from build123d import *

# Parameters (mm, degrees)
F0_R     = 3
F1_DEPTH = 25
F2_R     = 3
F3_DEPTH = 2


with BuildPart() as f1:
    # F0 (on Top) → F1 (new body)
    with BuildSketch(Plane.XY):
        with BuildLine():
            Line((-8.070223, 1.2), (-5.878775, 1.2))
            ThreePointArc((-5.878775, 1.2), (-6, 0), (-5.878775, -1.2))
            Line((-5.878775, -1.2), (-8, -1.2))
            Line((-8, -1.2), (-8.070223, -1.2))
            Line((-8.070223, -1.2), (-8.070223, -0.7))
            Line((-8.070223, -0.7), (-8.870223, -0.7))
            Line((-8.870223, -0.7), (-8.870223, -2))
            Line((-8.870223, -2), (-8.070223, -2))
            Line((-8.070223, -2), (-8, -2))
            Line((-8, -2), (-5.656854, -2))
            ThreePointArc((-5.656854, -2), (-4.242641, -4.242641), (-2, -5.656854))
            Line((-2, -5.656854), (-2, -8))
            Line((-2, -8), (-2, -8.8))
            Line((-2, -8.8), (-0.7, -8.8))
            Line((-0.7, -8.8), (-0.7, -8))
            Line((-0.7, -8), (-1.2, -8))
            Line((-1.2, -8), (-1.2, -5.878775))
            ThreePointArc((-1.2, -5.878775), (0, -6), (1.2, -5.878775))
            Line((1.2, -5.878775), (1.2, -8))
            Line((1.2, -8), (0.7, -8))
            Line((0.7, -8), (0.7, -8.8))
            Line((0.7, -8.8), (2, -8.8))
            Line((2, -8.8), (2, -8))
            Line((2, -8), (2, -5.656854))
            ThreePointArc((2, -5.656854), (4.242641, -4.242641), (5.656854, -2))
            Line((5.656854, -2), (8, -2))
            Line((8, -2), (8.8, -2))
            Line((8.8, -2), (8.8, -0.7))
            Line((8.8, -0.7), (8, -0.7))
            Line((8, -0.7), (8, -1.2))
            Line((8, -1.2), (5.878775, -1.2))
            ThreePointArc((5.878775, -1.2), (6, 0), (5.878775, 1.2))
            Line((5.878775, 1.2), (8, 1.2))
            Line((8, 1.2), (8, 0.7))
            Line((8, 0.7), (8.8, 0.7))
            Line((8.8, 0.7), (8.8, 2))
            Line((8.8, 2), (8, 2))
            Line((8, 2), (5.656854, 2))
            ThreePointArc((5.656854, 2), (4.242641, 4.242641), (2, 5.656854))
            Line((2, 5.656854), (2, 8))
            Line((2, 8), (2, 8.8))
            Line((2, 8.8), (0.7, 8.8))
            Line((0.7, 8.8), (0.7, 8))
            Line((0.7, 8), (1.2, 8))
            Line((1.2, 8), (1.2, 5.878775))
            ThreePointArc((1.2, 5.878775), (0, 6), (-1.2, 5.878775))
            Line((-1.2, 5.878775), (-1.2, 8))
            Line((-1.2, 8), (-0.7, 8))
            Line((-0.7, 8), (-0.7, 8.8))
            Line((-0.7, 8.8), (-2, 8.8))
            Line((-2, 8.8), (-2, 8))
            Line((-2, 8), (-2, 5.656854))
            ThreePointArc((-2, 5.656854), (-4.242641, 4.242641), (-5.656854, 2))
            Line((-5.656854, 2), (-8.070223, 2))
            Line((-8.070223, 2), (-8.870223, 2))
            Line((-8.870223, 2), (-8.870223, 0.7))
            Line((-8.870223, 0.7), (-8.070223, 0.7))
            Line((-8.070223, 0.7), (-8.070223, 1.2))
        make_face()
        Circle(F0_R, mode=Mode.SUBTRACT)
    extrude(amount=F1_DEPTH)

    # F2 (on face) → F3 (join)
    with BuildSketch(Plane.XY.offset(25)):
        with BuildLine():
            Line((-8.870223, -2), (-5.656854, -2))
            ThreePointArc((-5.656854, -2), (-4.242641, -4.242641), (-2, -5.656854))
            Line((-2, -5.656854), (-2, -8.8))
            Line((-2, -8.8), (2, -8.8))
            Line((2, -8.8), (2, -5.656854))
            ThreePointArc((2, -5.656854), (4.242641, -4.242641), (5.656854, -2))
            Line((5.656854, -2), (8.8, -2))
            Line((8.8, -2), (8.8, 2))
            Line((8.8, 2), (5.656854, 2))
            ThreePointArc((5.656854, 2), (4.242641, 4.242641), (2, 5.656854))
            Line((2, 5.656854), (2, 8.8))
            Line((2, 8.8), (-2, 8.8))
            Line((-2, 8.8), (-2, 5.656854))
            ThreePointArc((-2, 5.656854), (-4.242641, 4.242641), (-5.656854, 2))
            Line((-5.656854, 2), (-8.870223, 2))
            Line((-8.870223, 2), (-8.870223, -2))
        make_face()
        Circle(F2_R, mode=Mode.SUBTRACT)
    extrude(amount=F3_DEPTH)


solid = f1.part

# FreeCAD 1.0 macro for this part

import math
import FreeCAD as App
import Part
import Sketcher
from FreeCAD import Vector

doc = App.newDocument("Part")
body = doc.addObject("PartDesign::Body", "Body")

# Sketch on XY plane
sketch1 = doc.addObject("Sketcher::SketchObject", "Sketch")
body.addObject(sketch1)
sketch1.AttachmentSupport = (doc.XY_Plane, [""])
sketch1.MapMode = "FlatFace"
sketch1.addGeometry([
    Part.LineSegment(Vector(-8.070223, 1.2, 0), Vector(-5.878775, 1.2, 0)),  # 0
    Part.ArcOfCircle(Part.Circle(Vector(-0.000019, 0, 0), Vector(0, 0, 1), 5.999981), math.radians(168.463005), math.radians(191.536995)),  # 1
    Part.LineSegment(Vector(-5.878775, -1.2, 0), Vector(-8.070223, -1.2, 0)),  # 2
    Part.LineSegment(Vector(-8.070223, -1.2, 0), Vector(-8.070223, -0.7, 0)),  # 3
    Part.LineSegment(Vector(-8.070223, -0.7, 0), Vector(-8.870223, -0.7, 0)),  # 4
    Part.LineSegment(Vector(-8.870223, -0.7, 0), Vector(-8.870223, -2, 0)),  # 5
    Part.LineSegment(Vector(-8.870223, -2, 0), Vector(-5.656854, -2, 0)),  # 6
    Part.ArcOfCircle(Part.Circle(Vector(-0.000005, -0.000005, 0), Vector(0, 0, 1), 5.999994), math.radians(-160.528807), math.radians(-109.471193)),  # 7
    Part.LineSegment(Vector(-2, -5.656854, 0), Vector(-2, -8.8, 0)),  # 8
    Part.LineSegment(Vector(-2, -8.8, 0), Vector(-0.7, -8.8, 0)),  # 9
    Part.LineSegment(Vector(-0.7, -8.8, 0), Vector(-0.7, -8, 0)),  # 10
    Part.LineSegment(Vector(-0.7, -8, 0), Vector(-1.2, -8, 0)),  # 11
    Part.LineSegment(Vector(-1.2, -8, 0), Vector(-1.2, -5.878775, 0)),  # 12
    Part.ArcOfCircle(Part.Circle(Vector(0, -0.000019, 0), Vector(0, 0, 1), 5.999981), math.radians(-101.536995), math.radians(-78.463005)),  # 13
    Part.LineSegment(Vector(1.2, -5.878775, 0), Vector(1.2, -8, 0)),  # 14
    Part.LineSegment(Vector(1.2, -8, 0), Vector(0.7, -8, 0)),  # 15
    Part.LineSegment(Vector(0.7, -8, 0), Vector(0.7, -8.8, 0)),  # 16
    Part.LineSegment(Vector(0.7, -8.8, 0), Vector(2, -8.8, 0)),  # 17
    Part.LineSegment(Vector(2, -8.8, 0), Vector(2, -5.656854, 0)),  # 18
    Part.ArcOfCircle(Part.Circle(Vector(0.000005, -0.000005, 0), Vector(0, 0, 1), 5.999994), math.radians(-70.528807), math.radians(-19.471193)),  # 19
    Part.LineSegment(Vector(5.656854, -2, 0), Vector(8.8, -2, 0)),  # 20
    Part.LineSegment(Vector(8.8, -2, 0), Vector(8.8, -0.7, 0)),  # 21
    Part.LineSegment(Vector(8.8, -0.7, 0), Vector(8, -0.7, 0)),  # 22
    Part.LineSegment(Vector(8, -0.7, 0), Vector(8, -1.2, 0)),  # 23
    Part.LineSegment(Vector(8, -1.2, 0), Vector(5.878775, -1.2, 0)),  # 24
    Part.ArcOfCircle(Part.Circle(Vector(0.000019, 0, 0), Vector(0, 0, 1), 5.999981), math.radians(-11.536995), math.radians(11.536995)),  # 25
    Part.LineSegment(Vector(5.878775, 1.2, 0), Vector(8, 1.2, 0)),  # 26
    Part.LineSegment(Vector(8, 1.2, 0), Vector(8, 0.7, 0)),  # 27
    Part.LineSegment(Vector(8, 0.7, 0), Vector(8.8, 0.7, 0)),  # 28
    Part.LineSegment(Vector(8.8, 0.7, 0), Vector(8.8, 2, 0)),  # 29
    Part.LineSegment(Vector(8.8, 2, 0), Vector(5.656854, 2, 0)),  # 30
    Part.ArcOfCircle(Part.Circle(Vector(0.000005, 0.000005, 0), Vector(0, 0, 1), 5.999994), math.radians(19.471193), math.radians(70.528807)),  # 31
    Part.LineSegment(Vector(2, 5.656854, 0), Vector(2, 8.8, 0)),  # 32
    Part.LineSegment(Vector(2, 8.8, 0), Vector(0.7, 8.8, 0)),  # 33
    Part.LineSegment(Vector(0.7, 8.8, 0), Vector(0.7, 8, 0)),  # 34
    Part.LineSegment(Vector(0.7, 8, 0), Vector(1.2, 8, 0)),  # 35
    Part.LineSegment(Vector(1.2, 8, 0), Vector(1.2, 5.878775, 0)),  # 36
    Part.ArcOfCircle(Part.Circle(Vector(0, 0.000019, 0), Vector(0, 0, 1), 5.999981), math.radians(78.463005), math.radians(101.536995)),  # 37
    Part.LineSegment(Vector(-1.2, 5.878775, 0), Vector(-1.2, 8, 0)),  # 38
    Part.LineSegment(Vector(-1.2, 8, 0), Vector(-0.7, 8, 0)),  # 39
    Part.LineSegment(Vector(-0.7, 8, 0), Vector(-0.7, 8.8, 0)),  # 40
    Part.LineSegment(Vector(-0.7, 8.8, 0), Vector(-2, 8.8, 0)),  # 41
    Part.LineSegment(Vector(-2, 8.8, 0), Vector(-2, 5.656854, 0)),  # 42
    Part.ArcOfCircle(Part.Circle(Vector(-0.000005, 0.000005, 0), Vector(0, 0, 1), 5.999994), math.radians(109.471193), math.radians(160.528807)),  # 43
    Part.LineSegment(Vector(-5.656854, 2, 0), Vector(-8.870223, 2, 0)),  # 44
    Part.LineSegment(Vector(-8.870223, 2, 0), Vector(-8.870223, 0.7, 0)),  # 45
    Part.LineSegment(Vector(-8.870223, 0.7, 0), Vector(-8.070223, 0.7, 0)),  # 46
    Part.LineSegment(Vector(-8.070223, 0.7, 0), Vector(-8.070223, 1.2, 0)),  # 47
    Part.Circle(Vector(0, 0, 0), Vector(0, 0, 1), 3),  # 48
], False)
sketch1.addConstraint([
    Sketcher.Constraint("Coincident", 0, 2, 1, 1),
    Sketcher.Constraint("Coincident", 1, 2, 2, 1),
    Sketcher.Constraint("Coincident", 2, 2, 3, 1),
    Sketcher.Constraint("Coincident", 3, 2, 4, 1),
    Sketcher.Constraint("Coincident", 4, 2, 5, 1),
    Sketcher.Constraint("Coincident", 5, 2, 6, 1),
    Sketcher.Constraint("Coincident", 6, 2, 7, 1),
    Sketcher.Constraint("Coincident", 7, 2, 8, 1),
    Sketcher.Constraint("Coincident", 8, 2, 9, 1),
    Sketcher.Constraint("Coincident", 9, 2, 10, 1),
    Sketcher.Constraint("Coincident", 10, 2, 11, 1),
    Sketcher.Constraint("Coincident", 11, 2, 12, 1),
    Sketcher.Constraint("Coincident", 12, 2, 13, 1),
    Sketcher.Constraint("Coincident", 13, 2, 14, 1),
    Sketcher.Constraint("Coincident", 14, 2, 15, 1),
    Sketcher.Constraint("Coincident", 15, 2, 16, 1),
    Sketcher.Constraint("Coincident", 16, 2, 17, 1),
    Sketcher.Constraint("Coincident", 17, 2, 18, 1),
    Sketcher.Constraint("Coincident", 18, 2, 19, 1),
    Sketcher.Constraint("Coincident", 19, 2, 20, 1),
    Sketcher.Constraint("Coincident", 20, 2, 21, 1),
    Sketcher.Constraint("Coincident", 21, 2, 22, 1),
    Sketcher.Constraint("Coincident", 22, 2, 23, 1),
    Sketcher.Constraint("Coincident", 23, 2, 24, 1),
    Sketcher.Constraint("Coincident", 24, 2, 25, 1),
    Sketcher.Constraint("Coincident", 25, 2, 26, 1),
    Sketcher.Constraint("Coincident", 26, 2, 27, 1),
    Sketcher.Constraint("Coincident", 27, 2, 28, 1),
    Sketcher.Constraint("Coincident", 28, 2, 29, 1),
    Sketcher.Constraint("Coincident", 29, 2, 30, 1),
    Sketcher.Constraint("Coincident", 30, 2, 31, 1),
    Sketcher.Constraint("Coincident", 31, 2, 32, 1),
    Sketcher.Constraint("Coincident", 32, 2, 33, 1),
    Sketcher.Constraint("Coincident", 33, 2, 34, 1),
    Sketcher.Constraint("Coincident", 34, 2, 35, 1),
    Sketcher.Constraint("Coincident", 35, 2, 36, 1),
    Sketcher.Constraint("Coincident", 36, 2, 37, 1),
    Sketcher.Constraint("Coincident", 37, 2, 38, 1),
    Sketcher.Constraint("Coincident", 38, 2, 39, 1),
    Sketcher.Constraint("Coincident", 39, 2, 40, 1),
    Sketcher.Constraint("Coincident", 40, 2, 41, 1),
    Sketcher.Constraint("Coincident", 41, 2, 42, 1),
    Sketcher.Constraint("Coincident", 42, 2, 43, 1),
    Sketcher.Constraint("Coincident", 43, 2, 44, 1),
    Sketcher.Constraint("Coincident", 44, 2, 45, 1),
    Sketcher.Constraint("Coincident", 45, 2, 46, 1),
    Sketcher.Constraint("Coincident", 46, 2, 47, 1),
    Sketcher.Constraint("Coincident", 47, 2, 0, 1),
    Sketcher.Constraint("Horizontal", 0),
    Sketcher.Constraint("Horizontal", 2),
    Sketcher.Constraint("Vertical", 3),
    Sketcher.Constraint("Horizontal", 4),
    Sketcher.Constraint("Vertical", 5),
    Sketcher.Constraint("Horizontal", 6),
    Sketcher.Constraint("Vertical", 8),
    Sketcher.Constraint("Horizontal", 9),
    Sketcher.Constraint("Vertical", 10),
    Sketcher.Constraint("Horizontal", 11),
    Sketcher.Constraint("Vertical", 12),
    Sketcher.Constraint("Vertical", 14),
    Sketcher.Constraint("Horizontal", 15),
    Sketcher.Constraint("Vertical", 16),
    Sketcher.Constraint("Horizontal", 17),
    Sketcher.Constraint("Vertical", 18),
    Sketcher.Constraint("Horizontal", 20),
    Sketcher.Constraint("Vertical", 21),
    Sketcher.Constraint("Horizontal", 22),
    Sketcher.Constraint("Vertical", 23),
    Sketcher.Constraint("Horizontal", 24),
    Sketcher.Constraint("Horizontal", 26),
    Sketcher.Constraint("Vertical", 27),
    Sketcher.Constraint("Horizontal", 28),
    Sketcher.Constraint("Vertical", 29),
    Sketcher.Constraint("Horizontal", 30),
    Sketcher.Constraint("Vertical", 32),
    Sketcher.Constraint("Horizontal", 33),
    Sketcher.Constraint("Vertical", 34),
    Sketcher.Constraint("Horizontal", 35),
    Sketcher.Constraint("Vertical", 36),
    Sketcher.Constraint("Vertical", 38),
    Sketcher.Constraint("Horizontal", 39),
    Sketcher.Constraint("Vertical", 40),
    Sketcher.Constraint("Horizontal", 41),
    Sketcher.Constraint("Vertical", 42),
    Sketcher.Constraint("Horizontal", 44),
    Sketcher.Constraint("Vertical", 45),
    Sketcher.Constraint("Horizontal", 46),
    Sketcher.Constraint("Vertical", 47),
    Sketcher.Constraint("Coincident", 7, 3, -1, 1),
    Sketcher.Constraint("Coincident", 19, 3, -1, 1),
    Sketcher.Constraint("Coincident", 31, 3, -1, 1),
    Sketcher.Constraint("Coincident", 43, 3, -1, 1),
    Sketcher.Constraint("Coincident", 48, 3, -1, 1),
    Sketcher.Constraint("Equal", 1, 13),
    Sketcher.Constraint("Equal", 7, 19),
    Sketcher.Constraint("Equal", 13, 25),
    Sketcher.Constraint("Equal", 19, 31),
    Sketcher.Constraint("Equal", 25, 37),
    Sketcher.Constraint("Equal", 31, 43),
    Sketcher.Constraint("Symmetric", 1, 3, 25, 3, -1, 1),
    Sketcher.Constraint("Symmetric", 13, 3, 37, 3, -1, 1),
    Sketcher.Constraint("Symmetric", 8, 2, 32, 2, -1, 1),
    Sketcher.Constraint("Symmetric", 10, 2, 34, 2, -1, 1),
    Sketcher.Constraint("Symmetric", 14, 2, 38, 2, -1, 1),
    Sketcher.Constraint("Symmetric", 16, 2, 40, 2, -1, 1),
    Sketcher.Constraint("Symmetric", 12, 2, 13, 2, -2),
    Sketcher.Constraint("Symmetric", 10, 2, 15, 2, -2),
    Sketcher.Constraint("Symmetric", 8, 2, 17, 2, -2),
    Sketcher.Constraint("Symmetric", 1, 2, 24, 2, -2),
    Sketcher.Constraint("Symmetric", 23, 2, 26, 2, -1),
    Sketcher.Constraint("Symmetric", 21, 2, 28, 2, -1),
    Sketcher.Constraint("Symmetric", 5, 2, 44, 2, -1),
    Sketcher.Constraint("Symmetric", 3, 2, 46, 2, -1),
    Sketcher.Constraint("Horizontal", 6, 2, 19, 2),
    Sketcher.Constraint("Horizontal", 4, 2, 21, 2),
    Sketcher.Constraint("Horizontal", 0, 2, 25, 2),
    Sketcher.Constraint("Horizontal", 36, 2, 37, 2),
    Sketcher.Constraint("Horizontal", 31, 2, 42, 2),
    Sketcher.Constraint("Horizontal", 30, 2, 43, 2),
    Sketcher.Constraint("Equal", 4, 22),
    Sketcher.Constraint("Equal", 39, 3),
    Sketcher.Constraint("Equal", 41, 5),
    Sketcher.Constraint("Equal", 30, 8),
    Sketcher.Constraint("Equal", 46, 10),
    Sketcher.Constraint("Equal", 26, 12),
    Sketcher.Constraint("Diameter", 48, 6.0),
    Sketcher.Constraint("DistanceX", 4, 2, 4, 1, 0.8),
    Sketcher.Constraint("DistanceX", 9, 1, 9, 2, 1.3),
    Sketcher.Constraint("DistanceX", 11, 2, 11, 1, 0.5),
    Sketcher.Constraint("DistanceY", 5, 2, -1, 1, 2.0),
    Sketcher.Constraint("DistanceX", 7, 2, -1, 1, 2.0),
    Sketcher.Constraint("DistanceY", 10, 2, -1, 1, 8.0),
    Sketcher.Constraint("Radius", 1, 5.999981),
    Sketcher.Constraint("Radius", 7, 5.999994),
    Sketcher.Constraint("DistanceX", 0, 1, 0, 2, 2.191448),
    Sketcher.Constraint("DistanceX", 6, 1, 6, 2, 3.213369),
])
pad1 = doc.addObject("PartDesign::Pad", "Pad")
body.addObject(pad1)
pad1.Profile = sketch1
pad1.Length = 25

# Sketch on XY plane
sketch2 = doc.addObject("Sketcher::SketchObject", "Sketch001")
body.addObject(sketch2)
sketch2.AttachmentSupport = (doc.XY_Plane, [""])
sketch2.MapMode = "FlatFace"
sketch2.AttachmentOffset = App.Placement(Vector(0, 0, 25), App.Rotation())
sketch2.addGeometry([
    Part.LineSegment(Vector(-8.870223, -2, 0), Vector(-5.656854, -2, 0)),  # 0
    Part.ArcOfCircle(Part.Circle(Vector(-0.000005, -0.000005, 0), Vector(0, 0, 1), 5.999994), math.radians(-160.528807), math.radians(-109.471193)),  # 1
    Part.LineSegment(Vector(-2, -5.656854, 0), Vector(-2, -8.8, 0)),  # 2
    Part.LineSegment(Vector(-2, -8.8, 0), Vector(2, -8.8, 0)),  # 3
    Part.LineSegment(Vector(2, -8.8, 0), Vector(2, -5.656854, 0)),  # 4
    Part.ArcOfCircle(Part.Circle(Vector(0.000005, -0.000005, 0), Vector(0, 0, 1), 5.999994), math.radians(-70.528807), math.radians(-19.471193)),  # 5
    Part.LineSegment(Vector(5.656854, -2, 0), Vector(8.8, -2, 0)),  # 6
    Part.LineSegment(Vector(8.8, -2, 0), Vector(8.8, 2, 0)),  # 7
    Part.LineSegment(Vector(8.8, 2, 0), Vector(5.656854, 2, 0)),  # 8
    Part.ArcOfCircle(Part.Circle(Vector(0.000005, 0.000005, 0), Vector(0, 0, 1), 5.999994), math.radians(19.471193), math.radians(70.528807)),  # 9
    Part.LineSegment(Vector(2, 5.656854, 0), Vector(2, 8.8, 0)),  # 10
    Part.LineSegment(Vector(2, 8.8, 0), Vector(-2, 8.8, 0)),  # 11
    Part.LineSegment(Vector(-2, 8.8, 0), Vector(-2, 5.656854, 0)),  # 12
    Part.ArcOfCircle(Part.Circle(Vector(-0.000005, 0.000005, 0), Vector(0, 0, 1), 5.999994), math.radians(109.471193), math.radians(160.528807)),  # 13
    Part.LineSegment(Vector(-5.656854, 2, 0), Vector(-8.870223, 2, 0)),  # 14
    Part.LineSegment(Vector(-8.870223, 2, 0), Vector(-8.870223, -2, 0)),  # 15
    Part.Circle(Vector(0, 0, 0), Vector(0, 0, 1), 3),  # 16
], False)
sketch2.addConstraint([
    Sketcher.Constraint("Coincident", 0, 2, 1, 1),
    Sketcher.Constraint("Coincident", 1, 2, 2, 1),
    Sketcher.Constraint("Coincident", 2, 2, 3, 1),
    Sketcher.Constraint("Coincident", 3, 2, 4, 1),
    Sketcher.Constraint("Coincident", 4, 2, 5, 1),
    Sketcher.Constraint("Coincident", 5, 2, 6, 1),
    Sketcher.Constraint("Coincident", 6, 2, 7, 1),
    Sketcher.Constraint("Coincident", 7, 2, 8, 1),
    Sketcher.Constraint("Coincident", 8, 2, 9, 1),
    Sketcher.Constraint("Coincident", 9, 2, 10, 1),
    Sketcher.Constraint("Coincident", 10, 2, 11, 1),
    Sketcher.Constraint("Coincident", 11, 2, 12, 1),
    Sketcher.Constraint("Coincident", 12, 2, 13, 1),
    Sketcher.Constraint("Coincident", 13, 2, 14, 1),
    Sketcher.Constraint("Coincident", 14, 2, 15, 1),
    Sketcher.Constraint("Coincident", 15, 2, 0, 1),
    Sketcher.Constraint("Horizontal", 0),
    Sketcher.Constraint("Vertical", 2),
    Sketcher.Constraint("Horizontal", 3),
    Sketcher.Constraint("Vertical", 4),
    Sketcher.Constraint("Horizontal", 6),
    Sketcher.Constraint("Vertical", 7),
    Sketcher.Constraint("Horizontal", 8),
    Sketcher.Constraint("Vertical", 10),
    Sketcher.Constraint("Horizontal", 11),
    Sketcher.Constraint("Vertical", 12),
    Sketcher.Constraint("Horizontal", 14),
    Sketcher.Constraint("Vertical", 15),
    Sketcher.Constraint("Coincident", 1, 3, -1, 1),
    Sketcher.Constraint("Coincident", 5, 3, -1, 1),
    Sketcher.Constraint("Coincident", 9, 3, -1, 1),
    Sketcher.Constraint("Coincident", 13, 3, -1, 1),
    Sketcher.Constraint("Coincident", 16, 3, -1, 1),
    Sketcher.Constraint("Equal", 1, 5),
    Sketcher.Constraint("Equal", 5, 9),
    Sketcher.Constraint("Equal", 9, 13),
    Sketcher.Constraint("Symmetric", 2, 2, 10, 2, -1, 1),
    Sketcher.Constraint("Horizontal", 1, 2, 4, 2),
    Sketcher.Constraint("Horizontal", 0, 2, 5, 2),
    Sketcher.Constraint("Horizontal", 9, 2, 12, 2),
    Sketcher.Constraint("Horizontal", 8, 2, 13, 2),
    Sketcher.Constraint("Vertical", 5, 2, 8, 2),
    Sketcher.Constraint("Equal", 8, 2),
    Sketcher.Constraint("Equal", 11, 7),
    Sketcher.Constraint("Diameter", 16, 6.0),
    Sketcher.Constraint("DistanceX", 3, 1, 3, 2, 4.0),
    Sketcher.Constraint("DistanceY", 2, 2, -1, 1, 8.8),
    Sketcher.Constraint("Radius", 1, 5.999994),
    Sketcher.Constraint("DistanceX", 0, 1, 0, 2, 3.213369),
])
pad2 = doc.addObject("PartDesign::Pad", "Pad001")
body.addObject(pad2)
pad2.Profile = sketch2
pad2.Length = 2

doc.recompute()
